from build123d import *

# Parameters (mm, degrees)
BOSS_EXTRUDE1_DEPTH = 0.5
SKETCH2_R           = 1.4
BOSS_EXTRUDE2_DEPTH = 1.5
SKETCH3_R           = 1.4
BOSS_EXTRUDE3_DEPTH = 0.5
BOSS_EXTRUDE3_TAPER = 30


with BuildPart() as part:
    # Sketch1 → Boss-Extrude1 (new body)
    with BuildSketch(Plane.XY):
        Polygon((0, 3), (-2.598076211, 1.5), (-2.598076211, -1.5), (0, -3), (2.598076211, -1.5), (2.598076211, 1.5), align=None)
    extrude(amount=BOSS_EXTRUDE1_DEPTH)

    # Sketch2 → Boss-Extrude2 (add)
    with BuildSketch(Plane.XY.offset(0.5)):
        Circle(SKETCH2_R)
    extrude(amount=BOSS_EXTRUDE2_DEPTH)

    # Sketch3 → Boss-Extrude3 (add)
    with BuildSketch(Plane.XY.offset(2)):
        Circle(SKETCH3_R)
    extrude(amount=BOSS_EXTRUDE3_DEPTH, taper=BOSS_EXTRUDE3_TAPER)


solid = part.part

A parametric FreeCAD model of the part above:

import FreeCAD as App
import Part
import Sketcher

V = App.Vector
Q = App.Units.Quantity


def add_polygon(sketch, points):
    """Adds a closed chain of lines whose ends are joined by coincident constraints."""
    first, n = sketch.GeometryCount, len(points)
    for a, b in zip(points, points[1:] + points[:1]):
        sketch.addGeometry(Part.LineSegment(App.Vector(*a, 0), App.Vector(*b, 0)), False)
    for i in range(n):
        sketch.addConstraint(Sketcher.Constraint("Coincident", first + i, 2, first + (i + 1) % n, 1))

doc = App.newDocument("Part")
body = doc.addObject("PartDesign::Body", "Body")

sketch1 = doc.addObject("Sketcher::SketchObject", "Sketch")
body.addObject(sketch1)
sketch1.AttachmentSupport = (doc.XY_Plane, [""])
sketch1.MapMode = "FlatFace"
add_polygon(sketch1, [(0, 3), (-2.6, 1.5), (-2.6, -1.5), (0, -3), (2.6, -1.5), (2.6, 1.5)])
sketch1.addConstraint([
    Sketcher.Constraint("Vertical", 1),
    Sketcher.Constraint("Vertical", 4),
    Sketcher.Constraint("Symmetric", 0, 2, 3, 2, -1, 1),
    Sketcher.Constraint("Symmetric", 2, 2, 5, 2, -1, 1),
    Sketcher.Constraint("PointOnObject", 2, 2, -2),
    Sketcher.Constraint("Parallel", 2, 5),
    Sketcher.Constraint("Horizontal", 1, 2, 3, 2),
    Sketcher.Constraint("DistanceY", 1, 2, 1, 1, Q("3 mm")),
    Sketcher.Constraint("Angle", 0, Q("-150 deg")),
    Sketcher.Constraint("Distance", 0, Q("3 mm")),
])
pad1 = doc.addObject("PartDesign::Pad", "Pad")
body.addObject(pad1)
pad1.Profile = sketch1
pad1.Length = 0.5

sketch2 = doc.addObject("Sketcher::SketchObject", "Sketch001")
body.addObject(sketch2)
sketch2.AttachmentSupport = (doc.XY_Plane, [""])
sketch2.MapMode = "FlatFace"
sketch2.AttachmentOffset = App.Placement(V(0, 0, 0.5), App.Rotation())
sketch2.addGeometry(Part.Circle(V(0, 0, 0), V(0, 0, 1), 1.4), False)
sketch2.addConstraint([
    Sketcher.Constraint("Coincident", 0, 3, -1, 1),
    Sketcher.Constraint("Diameter", 0, Q("2.8 mm")),
])
pad2 = doc.addObject("PartDesign::Pad", "Pad001")
body.addObject(pad2)
pad2.Profile = sketch2
pad2.Length = 1.5

sketch3 = doc.addObject("Sketcher::SketchObject", "Sketch002")
body.addObject(sketch3)
sketch3.AttachmentSupport = (doc.XY_Plane, [""])
sketch3.MapMode = "FlatFace"
sketch3.AttachmentOffset = App.Placement(V(0, 0, 2), App.Rotation())
sketch3.addGeometry(Part.Circle(V(0, 0, 0), V(0, 0, 1), 1.4), False)
sketch3.addConstraint([
    Sketcher.Constraint("Coincident", 0, 3, -1, 1),
    Sketcher.Constraint("Diameter", 0, Q("2.8 mm")),
])
pad3 = doc.addObject("PartDesign::Pad", "Pad002")
body.addObject(pad3)
pad3.Profile = sketch3
pad3.Length = 0.5
pad3.TaperAngle = -30

doc.recompute()
